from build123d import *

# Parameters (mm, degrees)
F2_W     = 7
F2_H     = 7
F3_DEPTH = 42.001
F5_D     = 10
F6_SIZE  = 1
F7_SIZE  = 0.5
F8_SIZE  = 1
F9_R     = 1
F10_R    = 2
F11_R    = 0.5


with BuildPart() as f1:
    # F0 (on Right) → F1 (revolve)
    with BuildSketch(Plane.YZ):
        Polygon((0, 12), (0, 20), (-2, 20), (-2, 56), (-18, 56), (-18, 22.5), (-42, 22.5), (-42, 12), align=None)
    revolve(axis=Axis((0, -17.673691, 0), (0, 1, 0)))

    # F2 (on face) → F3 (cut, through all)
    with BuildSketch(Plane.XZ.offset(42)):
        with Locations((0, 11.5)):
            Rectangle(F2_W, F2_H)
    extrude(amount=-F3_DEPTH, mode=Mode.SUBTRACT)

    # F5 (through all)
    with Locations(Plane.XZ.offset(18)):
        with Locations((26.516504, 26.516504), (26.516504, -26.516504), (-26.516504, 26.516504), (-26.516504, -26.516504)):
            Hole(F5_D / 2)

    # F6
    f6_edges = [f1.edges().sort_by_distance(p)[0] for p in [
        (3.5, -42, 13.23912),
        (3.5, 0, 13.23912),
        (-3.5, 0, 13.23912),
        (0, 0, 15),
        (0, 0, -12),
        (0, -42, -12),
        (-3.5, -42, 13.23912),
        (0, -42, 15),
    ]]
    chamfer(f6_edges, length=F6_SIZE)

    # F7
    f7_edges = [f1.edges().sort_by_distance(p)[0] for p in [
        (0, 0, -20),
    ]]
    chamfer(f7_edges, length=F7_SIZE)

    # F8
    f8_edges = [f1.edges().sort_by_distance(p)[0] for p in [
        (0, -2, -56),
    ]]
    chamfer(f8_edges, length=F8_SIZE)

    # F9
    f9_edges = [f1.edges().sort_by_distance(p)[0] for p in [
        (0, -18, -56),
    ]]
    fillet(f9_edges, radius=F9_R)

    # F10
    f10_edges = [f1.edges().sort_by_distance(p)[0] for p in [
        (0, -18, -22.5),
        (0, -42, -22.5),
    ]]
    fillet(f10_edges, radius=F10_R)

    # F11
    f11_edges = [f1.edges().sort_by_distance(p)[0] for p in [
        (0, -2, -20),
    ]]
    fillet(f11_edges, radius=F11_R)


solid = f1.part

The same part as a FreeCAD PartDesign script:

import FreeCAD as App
import Part
import Sketcher
from FreeCAD import Vector


def edges_at(feature, points):
    """Names of the edges that pass closest to the given points."""
    edges = feature.Shape.Edges
    near = lambda p: min(range(len(edges)), key=lambda i: edges[i].distToShape(Part.Vertex(*p))[0])
    return sorted({f"Edge{near(p) + 1}" for p in points})

doc = App.newDocument("Part")
params = doc.addObject("Spreadsheet::Sheet", "Params")
for row, (alias, value) in enumerate([
    ("sketch1_width", "2 mm"),
    ("sketch1_width2", "16 mm"),
    ("sketch1_width3", "24 mm"),
    ("sketch1_height", "8 mm"),
    ("sketch1_height2", "36 mm"),
    ("revolution_angle", "360 deg"),
    ("sketch2_width", "7 mm"),
    ("sketch3_diameter", "10 mm"),
    ("hole_diameter", "10 mm"),
    ("chamfer_size", "1 mm"),
    ("chamfer2_size", "0.5 mm"),
    ("chamfer3_size", "1 mm"),
    ("fillet_radius", "1 mm"),
    ("fillet2_radius", "2 mm"),
    ("fillet3_radius", "0.5 mm"),
], start=1):
    params.set(f"A{row}", alias)
    params.set(f"B{row}", "=" + value)
    params.setAlias(f"B{row}", alias)

body = doc.addObject("PartDesign::Body", "Body")

# Sketch on YZ plane
sketch1 = body.newObject("Sketcher::SketchObject", "Sketch")
sketch1.AttachmentSupport = (doc.getObject("YZ_Plane"), [""])
sketch1.MapMode = "FlatFace"
sketch1.addGeometry([
    Part.LineSegment(Vector(0, 12, 0), Vector(0, 20, 0)),  # 0
    Part.LineSegment(Vector(0, 20, 0), Vector(-2, 20, 0)),  # 1
    Part.LineSegment(Vector(-2, 20, 0), Vector(-2, 56, 0)),  # 2
    Part.LineSegment(Vector(-2, 56, 0), Vector(-18, 56, 0)),  # 3
    Part.LineSegment(Vector(-18, 56, 0), Vector(-18, 22.5, 0)),  # 4
    Part.LineSegment(Vector(-18, 22.5, 0), Vector(-42, 22.5, 0)),  # 5
    Part.LineSegment(Vector(-42, 22.5, 0), Vector(-42, 12, 0)),  # 6
    Part.LineSegment(Vector(-42, 12, 0), Vector(0, 12, 0)),  # 7
], False)
sketch1.addConstraint([
    Sketcher.Constraint("Coincident", 0, 2, 1, 1),
    Sketcher.Constraint("Coincident", 1, 2, 2, 1),
    Sketcher.Constraint("Coincident", 2, 2, 3, 1),
    Sketcher.Constraint("Coincident", 3, 2, 4, 1),
    Sketcher.Constraint("Coincident", 4, 2, 5, 1),
    Sketcher.Constraint("Coincident", 5, 2, 6, 1),
    Sketcher.Constraint("Coincident", 6, 2, 7, 1),
    Sketcher.Constraint("Coincident", 7, 2, 0, 1),
    Sketcher.Constraint("Vertical", 0),
    Sketcher.Constraint("Horizontal", 1),
    Sketcher.Constraint("Vertical", 2),
    Sketcher.Constraint("Horizontal", 3),
    Sketcher.Constraint("Vertical", 4),
    Sketcher.Constraint("Horizontal", 5),
    Sketcher.Constraint("Vertical", 6),
    Sketcher.Constraint("Horizontal", 7),
    Sketcher.Constraint("PointOnObject", 0, 2, -2),
    Sketcher.Constraint("DistanceX", 1, 2, 1, 1, 2.0),
    Sketcher.Constraint("DistanceX", 3, 2, 3, 1, 16.0),
    Sketcher.Constraint("DistanceX", 5, 2, 5, 1, 24.0),
    Sketcher.Constraint("DistanceY", 0, 1, 0, 2, 8.0),
    Sketcher.Constraint("DistanceY", 2, 1, 2, 2, 36.0),
    Sketcher.Constraint("DistanceY", 4, 2, 4, 1, 33.5),
    Sketcher.Constraint("DistanceY", -1, 1, 0, 2, 20.0),
])
sketch1.setExpression("Constraints[17]", "Params.sketch1_width")
sketch1.setExpression("Constraints[18]", "Params.sketch1_width2")
sketch1.setExpression("Constraints[19]", "Params.sketch1_width3")
sketch1.setExpression("Constraints[20]", "Params.sketch1_height")
sketch1.setExpression("Constraints[21]", "Params.sketch1_height2")
revolution = body.newObject("PartDesign::Revolution", "Revolution")
revolution.Profile = sketch1
revolution.ReferenceAxis = (sketch1, ["H_Axis"])
revolution.setExpression("Angle", "Params.revolution_angle")

# Sketch on XZ plane
sketch2 = body.newObject("Sketcher::SketchObject", "Sketch001")
sketch2.AttachmentSupport = (doc.getObject("XZ_Plane"), [""])
sketch2.MapMode = "FlatFace"
sketch2.AttachmentOffset = App.Placement(Vector(0, 0, 42), App.Rotation())
sketch2.addGeometry([
    Part.LineSegment(Vector(-4, 15, 0), Vector(-4, 8, 0)),
    Part.LineSegment(Vector(-4, 8, 0), Vector(4, 8, 0)),
    Part.LineSegment(Vector(4, 8, 0), Vector(4, 15, 0)),
    Part.LineSegment(Vector(4, 15, 0), Vector(-4, 15, 0)),
], False)
sketch2.addConstraint([
    Sketcher.Constraint("Coincident", 0, 2, 1, 1),
    Sketcher.Constraint("Coincident", 1, 2, 2, 1),
    Sketcher.Constraint("Coincident", 2, 2, 3, 1),
    Sketcher.Constraint("Coincident", 3, 2, 0, 1),
    Sketcher.Constraint("Vertical", 0),
    Sketcher.Constraint("Horizontal", 1),
    Sketcher.Constraint("Vertical", 2),
    Sketcher.Constraint("Horizontal", 3),
    Sketcher.Constraint("Equal", 3, 0),
    Sketcher.Constraint("DistanceX", 1, 1, 1, 2, 7.0),
    Sketcher.Constraint("DistanceY", -1, 1, 0, 2, 8.0),
    Sketcher.Constraint("DistanceX", 0, 2, -1, 1, 3.5),
])
sketch2.setExpression("Constraints[9]", "Params.sketch2_width")
pocket1 = body.newObject("PartDesign::Pocket", "Pocket")
pocket1.Profile = sketch2
pocket1.Type = "ThroughAll"

# Sketch on XZ plane
sketch3 = body.newObject("Sketcher::SketchObject", "Sketch002")
sketch3.AttachmentSupport = (doc.getObject("XZ_Plane"), [""])
sketch3.MapMode = "FlatFace"
sketch3.AttachmentOffset = App.Placement(Vector(0, 0, 18), App.Rotation())
sketch3.addGeometry([
    Part.Circle(Vector(27, 27, 0), Vector(0, 0, 1), 5),
    Part.Circle(Vector(27, -27, 0), Vector(0, 0, 1), 5),
    Part.Circle(Vector(-27, 27, 0), Vector(0, 0, 1), 5),
    Part.Circle(Vector(-27, -27, 0), Vector(0, 0, 1), 5),
], False)
sketch3.addConstraint([
    Sketcher.Constraint("Equal", 0, 1),
    Sketcher.Constraint("Equal", 1, 2),
    Sketcher.Constraint("Equal", 2, 3),
    Sketcher.Constraint("Symmetric", 1, 3, 2, 3, -1, 1),
    Sketcher.Constraint("Symmetric", 0, 3, 3, 3, -1, 1),
    Sketcher.Constraint("Symmetric", 0, 3, 2, 3, -2),
    Sketcher.Constraint("Diameter", 0, 10.0),
    Sketcher.Constraint("DistanceY", 1, 3, 0, 3, 53.033008),
    Sketcher.Constraint("DistanceX", 2, 3, 0, 3, 53.033008),
])
sketch3.setExpression("Constraints[6]", "Params.sketch3_diameter")
doc.recompute()
hole = body.newObject("PartDesign::Hole", "Hole")
hole.Profile = sketch3
hole.ThreadType = "None"
hole.setExpression("Diameter", "Params.hole_diameter")
hole.DepthType = "ThroughAll"
doc.recompute()

chamfer = body.newObject("PartDesign::Chamfer", "Chamfer")
chamfer.Base = (hole, edges_at(hole, [
    (3.5, -42, 13.239),
    (3.5, 0, 13.239),
    (-3.5, 0, 13.239),
    (0, 0, 15),
    (0, 0, -12),
    (0, -42, -12),
    (-3.5, -42, 13.239),
    (0, -42, 15),
]))
chamfer.setExpression("Size", "Params.chamfer_size")
doc.recompute()

chamfer2 = body.newObject("PartDesign::Chamfer", "Chamfer001")
chamfer2.Base = (chamfer, edges_at(chamfer, [(0, 0, -20)]))
chamfer2.setExpression("Size", "Params.chamfer2_size")
doc.recompute()

chamfer3 = body.newObject("PartDesign::Chamfer", "Chamfer002")
chamfer3.Base = (chamfer2, edges_at(chamfer2, [(0, -2, -56)]))
chamfer3.setExpression("Size", "Params.chamfer3_size")
doc.recompute()

fillet = body.newObject("PartDesign::Fillet", "Fillet")
fillet.Base = (chamfer3, edges_at(chamfer3, [(0, -18, -56)]))
fillet.setExpression("Radius", "Params.fillet_radius")
doc.recompute()

fillet2 = body.newObject("PartDesign::Fillet", "Fillet001")
fillet2.Base = (fillet, edges_at(fillet, [(0, -18, -22.5), (0, -42, -22.5)]))
fillet2.setExpression("Radius", "Params.fillet2_radius")
doc.recompute()

fillet3 = body.newObject("PartDesign::Fillet", "Fillet002")
fillet3.Base = (fillet2, edges_at(fillet2, [(0, -2, -20)]))
fillet3.setExpression("Radius", "Params.fillet3_radius")

doc.recompute()
